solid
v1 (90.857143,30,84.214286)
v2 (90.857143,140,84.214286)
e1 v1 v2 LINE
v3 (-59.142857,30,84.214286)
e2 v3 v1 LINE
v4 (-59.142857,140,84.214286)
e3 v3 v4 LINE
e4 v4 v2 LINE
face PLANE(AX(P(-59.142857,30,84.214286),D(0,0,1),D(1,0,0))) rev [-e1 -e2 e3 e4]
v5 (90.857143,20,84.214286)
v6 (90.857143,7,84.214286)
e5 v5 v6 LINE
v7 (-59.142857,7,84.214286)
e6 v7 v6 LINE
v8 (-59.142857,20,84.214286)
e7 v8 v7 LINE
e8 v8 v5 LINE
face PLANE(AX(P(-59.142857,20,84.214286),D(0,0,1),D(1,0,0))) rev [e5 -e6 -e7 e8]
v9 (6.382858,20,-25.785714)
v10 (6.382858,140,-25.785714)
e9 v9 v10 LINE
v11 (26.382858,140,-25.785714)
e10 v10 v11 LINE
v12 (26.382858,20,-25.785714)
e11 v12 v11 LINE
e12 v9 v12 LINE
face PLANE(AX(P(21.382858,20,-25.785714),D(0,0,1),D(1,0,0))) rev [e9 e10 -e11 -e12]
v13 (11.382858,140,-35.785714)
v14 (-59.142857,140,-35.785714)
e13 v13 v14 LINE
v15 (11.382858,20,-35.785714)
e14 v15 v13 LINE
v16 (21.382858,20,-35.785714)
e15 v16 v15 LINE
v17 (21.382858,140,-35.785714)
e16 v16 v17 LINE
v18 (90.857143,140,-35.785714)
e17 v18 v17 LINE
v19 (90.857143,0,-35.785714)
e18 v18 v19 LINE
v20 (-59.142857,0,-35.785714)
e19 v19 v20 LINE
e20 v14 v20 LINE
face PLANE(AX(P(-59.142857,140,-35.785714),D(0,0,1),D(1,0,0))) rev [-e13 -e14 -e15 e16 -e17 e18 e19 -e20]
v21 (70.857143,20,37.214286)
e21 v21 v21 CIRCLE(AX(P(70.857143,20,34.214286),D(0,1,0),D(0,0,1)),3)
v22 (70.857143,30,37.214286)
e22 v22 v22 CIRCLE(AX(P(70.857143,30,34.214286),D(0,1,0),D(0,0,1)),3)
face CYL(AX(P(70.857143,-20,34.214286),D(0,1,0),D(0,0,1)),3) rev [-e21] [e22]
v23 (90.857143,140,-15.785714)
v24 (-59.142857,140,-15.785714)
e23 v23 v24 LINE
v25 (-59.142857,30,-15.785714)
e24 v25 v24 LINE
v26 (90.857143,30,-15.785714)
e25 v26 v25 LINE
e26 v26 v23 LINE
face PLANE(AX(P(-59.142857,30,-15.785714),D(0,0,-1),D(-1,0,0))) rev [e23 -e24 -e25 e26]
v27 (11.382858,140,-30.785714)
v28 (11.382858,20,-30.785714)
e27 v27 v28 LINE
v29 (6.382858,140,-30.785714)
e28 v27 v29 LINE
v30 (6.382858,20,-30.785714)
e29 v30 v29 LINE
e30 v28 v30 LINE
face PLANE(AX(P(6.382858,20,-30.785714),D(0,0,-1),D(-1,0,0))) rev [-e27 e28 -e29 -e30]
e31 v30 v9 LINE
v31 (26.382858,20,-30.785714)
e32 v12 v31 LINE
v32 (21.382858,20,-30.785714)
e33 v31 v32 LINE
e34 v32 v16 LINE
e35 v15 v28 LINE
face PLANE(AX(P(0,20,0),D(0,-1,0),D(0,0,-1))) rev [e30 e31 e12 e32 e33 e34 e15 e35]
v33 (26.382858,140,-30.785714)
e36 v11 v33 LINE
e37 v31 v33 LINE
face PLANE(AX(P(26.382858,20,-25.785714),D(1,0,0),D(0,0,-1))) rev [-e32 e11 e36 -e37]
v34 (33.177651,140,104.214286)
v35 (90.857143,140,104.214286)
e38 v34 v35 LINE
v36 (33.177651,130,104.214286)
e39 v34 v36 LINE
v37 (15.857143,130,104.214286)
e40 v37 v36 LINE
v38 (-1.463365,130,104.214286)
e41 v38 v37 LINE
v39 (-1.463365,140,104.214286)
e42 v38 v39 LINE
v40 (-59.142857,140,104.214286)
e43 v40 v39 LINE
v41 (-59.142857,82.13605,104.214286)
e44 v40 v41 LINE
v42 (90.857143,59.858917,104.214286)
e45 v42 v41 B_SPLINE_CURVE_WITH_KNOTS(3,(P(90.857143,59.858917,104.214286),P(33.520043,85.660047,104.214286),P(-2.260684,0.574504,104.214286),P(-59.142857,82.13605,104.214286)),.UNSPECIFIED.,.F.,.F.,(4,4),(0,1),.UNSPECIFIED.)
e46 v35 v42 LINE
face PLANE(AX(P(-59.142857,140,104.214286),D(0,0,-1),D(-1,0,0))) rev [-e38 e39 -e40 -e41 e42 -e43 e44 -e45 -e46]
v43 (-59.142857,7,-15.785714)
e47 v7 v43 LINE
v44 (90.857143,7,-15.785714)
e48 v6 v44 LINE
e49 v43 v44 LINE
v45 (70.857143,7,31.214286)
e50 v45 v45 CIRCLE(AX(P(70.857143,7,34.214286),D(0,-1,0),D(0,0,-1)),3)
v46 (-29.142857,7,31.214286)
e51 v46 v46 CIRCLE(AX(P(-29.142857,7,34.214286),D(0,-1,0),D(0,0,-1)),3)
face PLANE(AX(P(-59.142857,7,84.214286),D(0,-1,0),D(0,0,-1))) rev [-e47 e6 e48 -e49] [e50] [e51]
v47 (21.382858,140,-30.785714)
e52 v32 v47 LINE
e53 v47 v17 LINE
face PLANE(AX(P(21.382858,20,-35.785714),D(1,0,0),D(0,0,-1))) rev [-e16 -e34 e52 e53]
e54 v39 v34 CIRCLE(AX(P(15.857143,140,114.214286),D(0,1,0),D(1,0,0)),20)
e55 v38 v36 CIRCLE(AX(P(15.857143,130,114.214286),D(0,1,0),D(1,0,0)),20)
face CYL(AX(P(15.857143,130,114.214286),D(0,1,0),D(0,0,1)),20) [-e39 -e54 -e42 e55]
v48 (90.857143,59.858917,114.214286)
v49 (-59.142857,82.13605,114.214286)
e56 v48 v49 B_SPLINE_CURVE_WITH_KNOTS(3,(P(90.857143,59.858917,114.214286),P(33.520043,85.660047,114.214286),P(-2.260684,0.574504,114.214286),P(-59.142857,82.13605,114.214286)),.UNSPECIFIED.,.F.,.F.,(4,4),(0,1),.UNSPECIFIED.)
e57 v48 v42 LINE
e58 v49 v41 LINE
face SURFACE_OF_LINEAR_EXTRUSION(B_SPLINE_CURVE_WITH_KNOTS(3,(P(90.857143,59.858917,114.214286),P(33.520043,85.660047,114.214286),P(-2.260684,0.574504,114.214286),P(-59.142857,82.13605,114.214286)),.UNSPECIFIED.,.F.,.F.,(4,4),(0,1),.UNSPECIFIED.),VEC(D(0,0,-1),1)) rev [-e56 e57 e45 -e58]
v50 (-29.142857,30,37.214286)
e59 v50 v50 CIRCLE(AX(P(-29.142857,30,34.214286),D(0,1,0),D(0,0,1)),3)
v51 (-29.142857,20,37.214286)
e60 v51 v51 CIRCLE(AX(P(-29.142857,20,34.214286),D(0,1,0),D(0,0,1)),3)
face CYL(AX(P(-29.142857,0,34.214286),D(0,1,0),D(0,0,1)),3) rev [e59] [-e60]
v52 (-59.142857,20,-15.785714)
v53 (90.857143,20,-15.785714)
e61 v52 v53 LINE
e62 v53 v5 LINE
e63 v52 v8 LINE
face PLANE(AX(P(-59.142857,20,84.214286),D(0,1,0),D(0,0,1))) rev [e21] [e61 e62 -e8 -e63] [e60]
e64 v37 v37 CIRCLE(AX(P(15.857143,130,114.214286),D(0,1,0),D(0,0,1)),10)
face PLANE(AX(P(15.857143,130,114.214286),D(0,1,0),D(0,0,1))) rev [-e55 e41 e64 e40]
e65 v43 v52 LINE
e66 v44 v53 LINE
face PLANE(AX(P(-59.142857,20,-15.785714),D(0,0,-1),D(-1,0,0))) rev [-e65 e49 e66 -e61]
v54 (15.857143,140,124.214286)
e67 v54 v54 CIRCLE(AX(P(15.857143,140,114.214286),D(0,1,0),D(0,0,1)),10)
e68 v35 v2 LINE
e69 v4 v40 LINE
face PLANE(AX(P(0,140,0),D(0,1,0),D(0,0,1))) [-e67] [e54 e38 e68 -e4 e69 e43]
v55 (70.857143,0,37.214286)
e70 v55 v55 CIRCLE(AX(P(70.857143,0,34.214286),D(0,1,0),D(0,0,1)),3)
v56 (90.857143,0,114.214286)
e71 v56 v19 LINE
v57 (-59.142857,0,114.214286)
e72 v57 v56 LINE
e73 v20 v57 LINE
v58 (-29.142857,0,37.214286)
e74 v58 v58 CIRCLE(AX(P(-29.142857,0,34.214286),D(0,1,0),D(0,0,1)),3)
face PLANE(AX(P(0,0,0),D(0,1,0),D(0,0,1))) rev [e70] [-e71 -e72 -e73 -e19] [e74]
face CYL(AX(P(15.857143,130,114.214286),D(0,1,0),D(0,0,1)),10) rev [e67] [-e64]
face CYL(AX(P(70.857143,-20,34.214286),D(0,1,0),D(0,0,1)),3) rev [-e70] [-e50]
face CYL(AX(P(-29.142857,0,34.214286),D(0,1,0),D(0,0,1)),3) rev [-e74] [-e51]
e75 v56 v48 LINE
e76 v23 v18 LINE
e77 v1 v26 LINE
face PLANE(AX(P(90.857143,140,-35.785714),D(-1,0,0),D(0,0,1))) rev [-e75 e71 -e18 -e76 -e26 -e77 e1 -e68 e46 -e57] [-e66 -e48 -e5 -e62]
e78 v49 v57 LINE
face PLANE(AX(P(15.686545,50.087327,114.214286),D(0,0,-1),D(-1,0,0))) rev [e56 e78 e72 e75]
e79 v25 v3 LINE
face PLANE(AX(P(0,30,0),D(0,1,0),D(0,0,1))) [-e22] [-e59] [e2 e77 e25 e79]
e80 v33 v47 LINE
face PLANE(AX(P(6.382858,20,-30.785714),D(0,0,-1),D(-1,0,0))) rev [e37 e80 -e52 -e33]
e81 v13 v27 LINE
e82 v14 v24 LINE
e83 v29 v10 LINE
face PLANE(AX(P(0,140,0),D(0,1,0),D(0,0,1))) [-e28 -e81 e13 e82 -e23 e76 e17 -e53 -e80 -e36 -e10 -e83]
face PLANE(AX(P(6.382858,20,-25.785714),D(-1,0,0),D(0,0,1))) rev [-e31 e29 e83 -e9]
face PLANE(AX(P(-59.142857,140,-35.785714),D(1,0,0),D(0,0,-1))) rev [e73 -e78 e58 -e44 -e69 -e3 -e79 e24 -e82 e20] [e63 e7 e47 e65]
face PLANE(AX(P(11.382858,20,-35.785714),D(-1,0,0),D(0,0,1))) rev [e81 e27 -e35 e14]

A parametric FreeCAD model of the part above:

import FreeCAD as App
import Part
import Sketcher

V = App.Vector

doc = App.newDocument("Part")
body = doc.addObject("PartDesign::Body", "Body")

# Sketch on XZ plane
sketch1 = body.newObject("Sketcher::SketchObject", "Sketch")
sketch1.AttachmentSupport = (doc.getObject("XZ_Plane"), [""])
sketch1.MapMode = "FlatFace"
sketch1.addGeometry([
    Part.LineSegment(V(-59, -36, 0), V(-59, 104, 0)),
    Part.LineSegment(V(-59, 104, 0), V(91, 104, 0)),
    Part.LineSegment(V(91, 104, 0), V(91, -36, 0)),
    Part.LineSegment(V(91, -36, 0), V(-59, -36, 0)),
], False)
sketch1.addConstraint([
    Sketcher.Constraint("Coincident", 0, 2, 1, 1),
    Sketcher.Constraint("Coincident", 1, 2, 2, 1),
    Sketcher.Constraint("Coincident", 2, 2, 3, 1),
    Sketcher.Constraint("Coincident", 3, 2, 0, 1),
    Sketcher.Constraint("Vertical", 0),
    Sketcher.Constraint("Horizontal", 1),
    Sketcher.Constraint("Vertical", 2),
    Sketcher.Constraint("Horizontal", 3),
    Sketcher.Constraint("DistanceX", 1, 1, 1, 2, 150.0),
    Sketcher.Constraint("DistanceY", 0, 1, 0, 2, 140.0),
    Sketcher.Constraint("DistanceX", 0, 2, -1, 1, 59.142857),
    Sketcher.Constraint("DistanceY", -1, 1, 0, 2, 104.214286),
])
pad1 = body.newObject("PartDesign::Pad", "Pad")
pad1.Profile = sketch1
pad1.Length = 140
pad1.Reversed = True

# Sketch on XZ plane
sketch2 = body.newObject("Sketcher::SketchObject", "Sketch001")
sketch2.AttachmentSupport = (doc.getObject("XZ_Plane"), [""])
sketch2.MapMode = "FlatFace"
sketch2.AttachmentOffset = App.Placement(V(0, 0, -140), App.Rotation())
sketch2.addGeometry([
    Part.LineSegment(V(-59, -16, 0), V(-59, 84, 0)),
    Part.LineSegment(V(-59, 84, 0), V(91, 84, 0)),
    Part.LineSegment(V(91, 84, 0), V(91, -16, 0)),
    Part.LineSegment(V(91, -16, 0), V(-59, -16, 0)),
], False)
sketch2.addConstraint([
    Sketcher.Constraint("Coincident", 0, 2, 1, 1),
    Sketcher.Constraint("Coincident", 1, 2, 2, 1),
    Sketcher.Constraint("Coincident", 2, 2, 3, 1),
    Sketcher.Constraint("Coincident", 3, 2, 0, 1),
    Sketcher.Constraint("Vertical", 0),
    Sketcher.Constraint("Horizontal", 1),
    Sketcher.Constraint("Vertical", 2),
    Sketcher.Constraint("Horizontal", 3),
    Sketcher.Constraint("DistanceX", 1, 1, 1, 2, 150.0),
    Sketcher.Constraint("DistanceY", 0, 1, 0, 2, 100.0),
    Sketcher.Constraint("DistanceX", 0, 2, -1, 1, 59.142857),
    Sketcher.Constraint("DistanceY", -1, 1, 0, 2, 84.214286),
])
pocket1 = body.newObject("PartDesign::Pocket", "Pocket")
pocket1.Profile = sketch2
pocket1.Length = 110
pocket1.Reversed = True

# Sketch on YZ plane
sketch3 = body.newObject("Sketcher::SketchObject", "Sketch002")
sketch3.AttachmentSupport = (doc.getObject("YZ_Plane"), [""])
sketch3.MapMode = "FlatFace"
sketch3.AttachmentOffset = App.Placement(V(0, 0, 90.857143), App.Rotation())
sketch3.addGeometry([
    Part.LineSegment(V(20, 84, 0), V(7, 84, 0)),
    Part.LineSegment(V(7, 84, 0), V(7, -16, 0)),
    Part.LineSegment(V(7, -16, 0), V(20, -16, 0)),
    Part.LineSegment(V(20, -16, 0), V(20, 84, 0)),
], False)
sketch3.addConstraint([
    Sketcher.Constraint("Coincident", 0, 2, 1, 1),
    Sketcher.Constraint("Coincident", 1, 2, 2, 1),
    Sketcher.Constraint("Coincident", 2, 2, 3, 1),
    Sketcher.Constraint("Coincident", 3, 2, 0, 1),
    Sketcher.Constraint("Horizontal", 0),
    Sketcher.Constraint("Vertical", 1),
    Sketcher.Constraint("Horizontal", 2),
    Sketcher.Constraint("Vertical", 3),
    Sketcher.Constraint("DistanceX", 0, 2, 0, 1, 13.0),
    Sketcher.Constraint("DistanceY", 1, 2, 1, 1, 100.0),
    Sketcher.Constraint("DistanceX", -1, 1, 0, 2, 7.0),
    Sketcher.Constraint("DistanceY", -1, 1, 0, 2, 84.214286),
])
pocket2 = body.newObject("PartDesign::Pocket", "Pocket001")
pocket2.Profile = sketch3
pocket2.Type = "ThroughAll"

# Sketch on XZ plane
sketch4 = body.newObject("Sketcher::SketchObject", "Sketch003")
sketch4.AttachmentSupport = (doc.getObject("XZ_Plane"), [""])
sketch4.MapMode = "FlatFace"
sketch4.AttachmentOffset = App.Placement(V(0, 0, -30), App.Rotation())
sketch4.addGeometry(Part.Circle(V(70.9, 34.2, 0), V(0, 0, 1), 3), False)
sketch4.addConstraint([
    Sketcher.Constraint("Diameter", 0, 6.0),
    Sketcher.Constraint("DistanceX", -1, 1, 0, 3, 70.857143),
    Sketcher.Constraint("DistanceY", -1, 1, 0, 3, 34.214286),
])
pocket3 = body.newObject("PartDesign::Pocket", "Pocket002")
pocket3.Profile = sketch4
pocket3.Length = 50
pocket3.Reversed = True

# Sketch on XZ plane
sketch5 = body.newObject("Sketcher::SketchObject", "Sketch004")
sketch5.AttachmentSupport = (doc.getObject("XZ_Plane"), [""])
sketch5.MapMode = "FlatFace"
sketch5.AttachmentOffset = App.Placement(V(0, 0, -30), App.Rotation())
sketch5.addGeometry(Part.Circle(V(-29.1, 34.2, 0), V(0, 0, 1), 3), False)
sketch5.addConstraint([
    Sketcher.Constraint("Diameter", 0, 6.0),
    Sketcher.Constraint("DistanceX", 0, 3, -1, 1, 29.142857),
    Sketcher.Constraint("DistanceY", -1, 1, 0, 3, 34.214286),
])
pocket4 = body.newObject("PartDesign::Pocket", "Pocket003")
pocket4.Profile = sketch5
pocket4.Type = "ThroughAll"
pocket4.Reversed = True

# Sketch on XZ plane
sketch6 = body.newObject("Sketcher::SketchObject", "Sketch005")
sketch6.AttachmentSupport = (doc.getObject("XZ_Plane"), [""])
sketch6.MapMode = "FlatFace"
sketch6.AttachmentOffset = App.Placement(V(0, 0, -140), App.Rotation())
sketch6.addGeometry([
    Part.Circle(V(16, 114, 0), V(0, 0, 1), 20),
    Part.Circle(V(16, 114, 0), V(0, 0, 1), 10),
], False)
sketch6.addConstraint([
    Sketcher.Constraint("Coincident", 1, 3, 0, 3),
    Sketcher.Constraint("Diameter", 0, 40.0),
    Sketcher.Constraint("Diameter", 1, 20.0),
    Sketcher.Constraint("DistanceX", -1, 1, 0, 3, 15.857143),
    Sketcher.Constraint("DistanceY", -1, 1, 0, 3, 114.214286),
])
pad2 = body.newObject("PartDesign::Pad", "Pad001")
pad2.Profile = sketch6
pad2.Length = 10

# Sketch on XZ plane
sketch7 = body.newObject("Sketcher::SketchObject", "Sketch006")
sketch7.AttachmentSupport = (doc.getObject("XZ_Plane"), [""])
sketch7.MapMode = "FlatFace"
sketch7.AttachmentOffset = App.Placement(V(0, 0, -140), App.Rotation())
sketch7.addGeometry([
    Part.LineSegment(V(11, -36, 0), V(11, -26, 0)),
    Part.LineSegment(V(11, -26, 0), V(21, -26, 0)),
    Part.LineSegment(V(21, -26, 0), V(21, -36, 0)),
    Part.LineSegment(V(21, -36, 0), V(11, -36, 0)),
], False)
sketch7.addConstraint([
    Sketcher.Constraint("Coincident", 0, 2, 1, 1),
    Sketcher.Constraint("Coincident", 1, 2, 2, 1),
    Sketcher.Constraint("Coincident", 2, 2, 3, 1),
    Sketcher.Constraint("Coincident", 3, 2, 0, 1),
    Sketcher.Constraint("Vertical", 0),
    Sketcher.Constraint("Horizontal", 1),
    Sketcher.Constraint("Vertical", 2),
    Sketcher.Constraint("Horizontal", 3),
    Sketcher.Constraint("Equal", 3, 0),
    Sketcher.Constraint("DistanceX", 1, 1, 1, 2, 10.0),
    Sketcher.Constraint("DistanceX", -1, 1, 0, 2, 11.382858),
    Sketcher.Constraint("DistanceY", 0, 2, -1, 1, 25.785714),
])
pocket5 = body.newObject("PartDesign::Pocket", "Pocket004")
pocket5.Profile = sketch7
pocket5.Length = 120
pocket5.Reversed = True

# Sketch on XZ plane
sketch8 = body.newObject("Sketcher::SketchObject", "Sketch007")
sketch8.AttachmentSupport = (doc.getObject("XZ_Plane"), [""])
sketch8.MapMode = "FlatFace"
sketch8.AttachmentOffset = App.Placement(V(0, 0, -140), App.Rotation())
sketch8.addGeometry([
    Part.LineSegment(V(6, -31, 0), V(6, -26, 0)),
    Part.LineSegment(V(6, -26, 0), V(26, -26, 0)),
    Part.LineSegment(V(26, -26, 0), V(26, -31, 0)),
    Part.LineSegment(V(26, -31, 0), V(6, -31, 0)),
], False)
sketch8.addConstraint([
    Sketcher.Constraint("Coincident", 0, 2, 1, 1),
    Sketcher.Constraint("Coincident", 1, 2, 2, 1),
    Sketcher.Constraint("Coincident", 2, 2, 3, 1),
    Sketcher.Constraint("Coincident", 3, 2, 0, 1),
    Sketcher.Constraint("Vertical", 0),
    Sketcher.Constraint("Horizontal", 1),
    Sketcher.Constraint("Vertical", 2),
    Sketcher.Constraint("Horizontal", 3),
    Sketcher.Constraint("DistanceX", 1, 1, 1, 2, 20.0),
    Sketcher.Constraint("DistanceY", 0, 1, 0, 2, 5.0),
    Sketcher.Constraint("DistanceX", -1, 1, 0, 2, 6.382858),
    Sketcher.Constraint("DistanceY", 0, 2, -1, 1, 25.785714),
])
pocket6 = body.newObject("PartDesign::Pocket", "Pocket005")
pocket6.Profile = sketch8
pocket6.Length = 120
pocket6.Reversed = True

# Sketch on XY plane
sketch9 = body.newObject("Sketcher::SketchObject", "Sketch008")
sketch9.AttachmentSupport = (doc.getObject("XY_Plane"), [""])
sketch9.MapMode = "FlatFace"
sketch9.AttachmentOffset = App.Placement(V(0, 0, 104.214286), App.Rotation())
sketch9.addGeometry([
    Part.LineSegment(V(-59.142857, 82.13605, 0), V(-59.142857, 0, 0)),
    Part.LineSegment(V(-59.142857, 0, 0), V(90.857143, 0, 0)),
    Part.LineSegment(V(90.857143, 0, 0), V(90.857143, 59.858917, 0)),
    Part.BSplineCurve([V(-59.142857, 82.13605, 0), V(-2.260684, 0.574504, 0), V(33.520043, 85.660047, 0), V(90.857143, 59.858917, 0)], [4, 4], [0, 1], False, 3, [1, 1, 1, 1], False),
], False)
sketch9.addConstraint([
    Sketcher.Constraint("Block", 3),
    Sketcher.Constraint("Coincident", 0, 2, 1, 1),
    Sketcher.Constraint("Coincident", 1, 2, 2, 1),
    Sketcher.Constraint("Coincident", 2, 2, 3, 2),
    Sketcher.Constraint("Coincident", 3, 1, 0, 1),
    Sketcher.Constraint("Vertical", 0),
    Sketcher.Constraint("Horizontal", 1),
    Sketcher.Constraint("Vertical", 2),
    Sketcher.Constraint("PointOnObject", 0, 2, -1),
])
pad3 = body.newObject("PartDesign::Pad", "Pad002")
pad3.Profile = sketch9
pad3.Length = 10

doc.recompute()
